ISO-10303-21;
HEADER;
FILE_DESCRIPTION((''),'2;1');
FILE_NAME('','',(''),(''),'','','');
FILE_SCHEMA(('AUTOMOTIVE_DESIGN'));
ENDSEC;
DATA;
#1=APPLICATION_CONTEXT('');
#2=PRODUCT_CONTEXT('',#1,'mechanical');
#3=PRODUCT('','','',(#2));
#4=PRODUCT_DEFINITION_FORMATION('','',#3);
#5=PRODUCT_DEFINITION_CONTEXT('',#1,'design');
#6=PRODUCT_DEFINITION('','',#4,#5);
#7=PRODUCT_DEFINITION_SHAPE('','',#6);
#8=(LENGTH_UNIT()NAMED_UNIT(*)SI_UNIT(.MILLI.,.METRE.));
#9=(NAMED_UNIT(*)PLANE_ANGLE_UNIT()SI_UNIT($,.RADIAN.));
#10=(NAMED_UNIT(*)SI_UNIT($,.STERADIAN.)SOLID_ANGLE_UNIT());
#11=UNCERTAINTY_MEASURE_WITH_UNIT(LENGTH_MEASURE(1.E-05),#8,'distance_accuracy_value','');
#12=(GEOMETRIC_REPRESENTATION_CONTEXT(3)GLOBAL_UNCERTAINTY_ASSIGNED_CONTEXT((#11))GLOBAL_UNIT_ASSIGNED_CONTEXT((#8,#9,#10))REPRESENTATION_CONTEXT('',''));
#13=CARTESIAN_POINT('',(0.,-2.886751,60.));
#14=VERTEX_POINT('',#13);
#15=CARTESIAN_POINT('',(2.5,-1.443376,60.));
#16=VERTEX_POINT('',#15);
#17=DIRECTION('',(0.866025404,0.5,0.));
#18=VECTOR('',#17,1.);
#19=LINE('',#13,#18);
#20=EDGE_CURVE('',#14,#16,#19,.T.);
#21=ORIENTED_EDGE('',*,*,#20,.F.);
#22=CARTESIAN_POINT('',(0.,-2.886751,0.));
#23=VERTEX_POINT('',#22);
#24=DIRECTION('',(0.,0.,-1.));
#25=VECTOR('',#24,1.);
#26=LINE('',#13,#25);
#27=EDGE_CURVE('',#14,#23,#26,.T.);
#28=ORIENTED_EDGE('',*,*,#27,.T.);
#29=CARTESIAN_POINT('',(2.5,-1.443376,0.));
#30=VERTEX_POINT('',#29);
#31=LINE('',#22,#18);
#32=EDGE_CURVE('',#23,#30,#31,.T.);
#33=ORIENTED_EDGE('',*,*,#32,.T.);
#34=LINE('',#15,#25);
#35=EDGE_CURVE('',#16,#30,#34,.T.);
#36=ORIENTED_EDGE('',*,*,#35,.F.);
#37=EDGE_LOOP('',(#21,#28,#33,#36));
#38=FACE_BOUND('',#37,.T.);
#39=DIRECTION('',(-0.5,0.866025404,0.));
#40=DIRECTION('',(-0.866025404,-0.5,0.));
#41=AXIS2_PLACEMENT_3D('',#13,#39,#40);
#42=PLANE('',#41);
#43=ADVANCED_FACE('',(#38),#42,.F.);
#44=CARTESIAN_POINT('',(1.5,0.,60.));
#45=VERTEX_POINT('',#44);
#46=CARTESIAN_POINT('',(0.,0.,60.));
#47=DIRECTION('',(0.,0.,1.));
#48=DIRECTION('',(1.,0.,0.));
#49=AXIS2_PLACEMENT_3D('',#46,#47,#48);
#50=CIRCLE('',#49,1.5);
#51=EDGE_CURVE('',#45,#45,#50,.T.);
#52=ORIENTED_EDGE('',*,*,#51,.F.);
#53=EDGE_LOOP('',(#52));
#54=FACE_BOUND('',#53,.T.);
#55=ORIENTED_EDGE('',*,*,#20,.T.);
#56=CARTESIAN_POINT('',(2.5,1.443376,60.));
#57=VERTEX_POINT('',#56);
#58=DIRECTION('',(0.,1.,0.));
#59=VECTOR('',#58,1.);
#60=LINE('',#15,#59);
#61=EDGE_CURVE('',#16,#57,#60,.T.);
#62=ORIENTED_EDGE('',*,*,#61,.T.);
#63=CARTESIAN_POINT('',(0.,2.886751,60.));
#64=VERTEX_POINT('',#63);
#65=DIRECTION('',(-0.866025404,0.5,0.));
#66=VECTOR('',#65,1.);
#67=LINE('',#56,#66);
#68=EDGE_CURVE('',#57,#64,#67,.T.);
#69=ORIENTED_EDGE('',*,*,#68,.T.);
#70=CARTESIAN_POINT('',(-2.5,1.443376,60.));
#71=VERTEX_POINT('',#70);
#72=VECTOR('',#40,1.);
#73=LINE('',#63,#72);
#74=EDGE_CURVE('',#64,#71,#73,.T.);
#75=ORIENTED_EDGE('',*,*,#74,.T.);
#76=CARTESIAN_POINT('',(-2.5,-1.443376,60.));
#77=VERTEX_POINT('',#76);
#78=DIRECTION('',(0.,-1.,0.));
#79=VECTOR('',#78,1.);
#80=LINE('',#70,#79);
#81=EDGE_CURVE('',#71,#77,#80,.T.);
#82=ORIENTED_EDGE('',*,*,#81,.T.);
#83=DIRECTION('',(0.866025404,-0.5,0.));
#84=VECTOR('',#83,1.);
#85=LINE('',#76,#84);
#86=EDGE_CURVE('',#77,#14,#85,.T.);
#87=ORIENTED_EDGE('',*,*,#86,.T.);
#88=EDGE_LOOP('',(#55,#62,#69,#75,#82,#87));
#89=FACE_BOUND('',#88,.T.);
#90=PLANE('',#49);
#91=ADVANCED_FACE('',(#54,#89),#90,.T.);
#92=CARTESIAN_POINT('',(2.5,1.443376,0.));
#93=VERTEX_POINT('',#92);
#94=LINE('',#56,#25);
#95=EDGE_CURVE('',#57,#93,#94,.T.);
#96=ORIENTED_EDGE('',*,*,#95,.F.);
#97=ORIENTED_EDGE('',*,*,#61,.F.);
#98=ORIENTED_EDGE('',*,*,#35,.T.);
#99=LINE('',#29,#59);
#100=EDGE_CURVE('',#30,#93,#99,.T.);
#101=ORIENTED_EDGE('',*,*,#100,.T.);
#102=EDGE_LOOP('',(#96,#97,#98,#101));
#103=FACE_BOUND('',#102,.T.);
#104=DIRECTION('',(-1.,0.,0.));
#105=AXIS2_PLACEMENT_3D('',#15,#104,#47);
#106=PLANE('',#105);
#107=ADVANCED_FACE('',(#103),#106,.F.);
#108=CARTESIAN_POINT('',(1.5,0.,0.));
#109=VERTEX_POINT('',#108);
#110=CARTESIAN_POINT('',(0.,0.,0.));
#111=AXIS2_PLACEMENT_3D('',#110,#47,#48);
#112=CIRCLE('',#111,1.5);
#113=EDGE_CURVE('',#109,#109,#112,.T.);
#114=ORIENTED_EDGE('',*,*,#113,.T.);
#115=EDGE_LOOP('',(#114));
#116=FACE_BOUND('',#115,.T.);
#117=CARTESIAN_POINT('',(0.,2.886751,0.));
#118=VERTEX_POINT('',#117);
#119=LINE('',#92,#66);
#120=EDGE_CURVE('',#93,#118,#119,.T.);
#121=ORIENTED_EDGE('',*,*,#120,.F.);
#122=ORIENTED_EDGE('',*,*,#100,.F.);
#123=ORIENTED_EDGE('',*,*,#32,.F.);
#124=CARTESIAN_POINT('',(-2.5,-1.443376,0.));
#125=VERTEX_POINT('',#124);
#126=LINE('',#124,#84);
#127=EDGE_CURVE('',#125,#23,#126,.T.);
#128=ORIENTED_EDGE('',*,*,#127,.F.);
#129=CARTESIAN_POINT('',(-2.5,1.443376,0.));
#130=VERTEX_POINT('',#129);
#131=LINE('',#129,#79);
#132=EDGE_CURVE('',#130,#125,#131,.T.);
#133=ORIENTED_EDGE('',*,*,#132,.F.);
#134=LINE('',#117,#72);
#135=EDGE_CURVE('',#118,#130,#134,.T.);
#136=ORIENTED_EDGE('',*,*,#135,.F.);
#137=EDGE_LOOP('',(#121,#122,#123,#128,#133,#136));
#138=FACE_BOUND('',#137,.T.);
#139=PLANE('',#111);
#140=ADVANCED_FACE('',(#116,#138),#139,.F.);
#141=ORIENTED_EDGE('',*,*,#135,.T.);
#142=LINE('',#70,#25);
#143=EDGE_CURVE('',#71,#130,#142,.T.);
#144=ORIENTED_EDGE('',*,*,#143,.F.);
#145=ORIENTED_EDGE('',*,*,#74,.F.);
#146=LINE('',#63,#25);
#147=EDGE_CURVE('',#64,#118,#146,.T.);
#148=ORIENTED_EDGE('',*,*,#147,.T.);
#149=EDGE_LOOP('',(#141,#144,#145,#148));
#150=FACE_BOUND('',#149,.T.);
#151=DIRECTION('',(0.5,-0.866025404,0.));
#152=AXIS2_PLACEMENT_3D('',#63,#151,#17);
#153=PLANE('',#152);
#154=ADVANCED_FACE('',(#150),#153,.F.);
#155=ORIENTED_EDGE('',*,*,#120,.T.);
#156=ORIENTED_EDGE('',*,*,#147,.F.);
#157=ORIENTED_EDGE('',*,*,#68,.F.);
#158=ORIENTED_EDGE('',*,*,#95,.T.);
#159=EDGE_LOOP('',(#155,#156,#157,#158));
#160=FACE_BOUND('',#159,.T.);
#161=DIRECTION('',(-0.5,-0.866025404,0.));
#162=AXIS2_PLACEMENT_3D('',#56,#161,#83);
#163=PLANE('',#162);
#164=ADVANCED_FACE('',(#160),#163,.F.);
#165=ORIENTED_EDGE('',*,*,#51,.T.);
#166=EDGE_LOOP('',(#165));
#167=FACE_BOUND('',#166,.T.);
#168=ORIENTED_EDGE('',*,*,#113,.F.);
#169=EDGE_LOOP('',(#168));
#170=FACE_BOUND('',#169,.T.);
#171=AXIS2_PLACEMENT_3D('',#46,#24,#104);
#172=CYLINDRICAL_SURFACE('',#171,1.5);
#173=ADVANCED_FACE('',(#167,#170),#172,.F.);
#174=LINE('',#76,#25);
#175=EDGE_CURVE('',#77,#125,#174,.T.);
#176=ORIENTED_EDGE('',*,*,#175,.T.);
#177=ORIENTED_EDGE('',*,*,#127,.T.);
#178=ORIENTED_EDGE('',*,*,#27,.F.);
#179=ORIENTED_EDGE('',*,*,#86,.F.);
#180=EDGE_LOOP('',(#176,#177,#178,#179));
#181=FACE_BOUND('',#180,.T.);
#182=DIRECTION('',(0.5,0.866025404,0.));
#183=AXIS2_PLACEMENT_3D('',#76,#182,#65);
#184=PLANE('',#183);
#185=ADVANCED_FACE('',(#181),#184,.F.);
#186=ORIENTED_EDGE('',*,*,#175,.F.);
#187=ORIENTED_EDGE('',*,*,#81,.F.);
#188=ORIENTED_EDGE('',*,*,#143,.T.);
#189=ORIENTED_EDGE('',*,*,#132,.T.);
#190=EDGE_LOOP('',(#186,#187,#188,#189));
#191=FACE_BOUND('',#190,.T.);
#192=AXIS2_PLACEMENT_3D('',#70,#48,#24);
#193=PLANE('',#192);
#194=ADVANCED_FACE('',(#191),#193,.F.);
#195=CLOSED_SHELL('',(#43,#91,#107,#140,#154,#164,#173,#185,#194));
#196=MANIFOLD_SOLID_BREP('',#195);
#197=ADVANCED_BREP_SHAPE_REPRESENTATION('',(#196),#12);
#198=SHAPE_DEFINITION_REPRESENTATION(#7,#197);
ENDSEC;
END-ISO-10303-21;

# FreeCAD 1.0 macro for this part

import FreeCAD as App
import Part
import Sketcher
Q = App.Units.Quantity


def add_polygon(sketch, points):
    """Adds a closed chain of lines whose ends are joined by coincident constraints."""
    first, n = sketch.GeometryCount, len(points)
    for a, b in zip(points, points[1:] + points[:1]):
        sketch.addGeometry(Part.LineSegment(App.Vector(*a, 0), App.Vector(*b, 0)), False)
    for i in range(n):
        sketch.addConstraint(Sketcher.Constraint("Coincident", first + i, 2, first + (i + 1) % n, 1))

doc = App.newDocument("Part")
params = doc.addObject("Spreadsheet::Sheet", "Params")
for row, (alias, value) in enumerate([
    ("sketch1_diameter", "3 mm"),
    ("pad1_length", "60 mm"),
], start=1):
    params.set(f"A{row}", alias)
    params.set(f"B{row}", "=" + value)
    params.setAlias(f"B{row}", alias)

body = doc.addObject("PartDesign::Body", "Body")

# Sketch on XY plane
sketch1 = body.newObject("Sketcher::SketchObject", "Sketch")
sketch1.AttachmentSupport = (doc.getObject("XY_Plane"), [""])
sketch1.MapMode = "FlatFace"
add_polygon(sketch1, [(0, 2.9), (-2.5, 1.4), (-2.5, -1.4), (0, -2.9), (2.5, -1.4), (2.5, 1.4)])  # lines 0-5
sketch1.addGeometry(Part.Circle(App.Vector(0, 0, 0), App.Vector(0, 0, 1), 1.5), False)  # 6
sketch1.addConstraint([
    Sketcher.Constraint("Vertical", 1),
    Sketcher.Constraint("Vertical", 4),
    Sketcher.Constraint("Coincident", 6, 3, -1, 1),
    Sketcher.Constraint("Symmetric", 0, 2, 3, 2, -1, 1),
    Sketcher.Constraint("Symmetric", 2, 2, 5, 2, -1, 1),
    Sketcher.Constraint("PointOnObject", 2, 2, -2),
    Sketcher.Constraint("Parallel", 2, 5),
    Sketcher.Constraint("Horizontal", 1, 2, 3, 2),
    Sketcher.Constraint("Diameter", 6, 3.0),
    Sketcher.Constraint("Angle", 0, Q("-150 deg")),
    Sketcher.Constraint("DistanceX", 1, 2, 3, 2, 5.0),
    Sketcher.Constraint("DistanceY", 1, 2, 1, 1, 2.886751),
])
sketch1.setExpression("Constraints[14]", "Params.sketch1_diameter")
pad1 = body.newObject("PartDesign::Pad", "Pad")
pad1.Profile = sketch1
pad1.setExpression("Length", "Params.pad1_length")

doc.recompute()
